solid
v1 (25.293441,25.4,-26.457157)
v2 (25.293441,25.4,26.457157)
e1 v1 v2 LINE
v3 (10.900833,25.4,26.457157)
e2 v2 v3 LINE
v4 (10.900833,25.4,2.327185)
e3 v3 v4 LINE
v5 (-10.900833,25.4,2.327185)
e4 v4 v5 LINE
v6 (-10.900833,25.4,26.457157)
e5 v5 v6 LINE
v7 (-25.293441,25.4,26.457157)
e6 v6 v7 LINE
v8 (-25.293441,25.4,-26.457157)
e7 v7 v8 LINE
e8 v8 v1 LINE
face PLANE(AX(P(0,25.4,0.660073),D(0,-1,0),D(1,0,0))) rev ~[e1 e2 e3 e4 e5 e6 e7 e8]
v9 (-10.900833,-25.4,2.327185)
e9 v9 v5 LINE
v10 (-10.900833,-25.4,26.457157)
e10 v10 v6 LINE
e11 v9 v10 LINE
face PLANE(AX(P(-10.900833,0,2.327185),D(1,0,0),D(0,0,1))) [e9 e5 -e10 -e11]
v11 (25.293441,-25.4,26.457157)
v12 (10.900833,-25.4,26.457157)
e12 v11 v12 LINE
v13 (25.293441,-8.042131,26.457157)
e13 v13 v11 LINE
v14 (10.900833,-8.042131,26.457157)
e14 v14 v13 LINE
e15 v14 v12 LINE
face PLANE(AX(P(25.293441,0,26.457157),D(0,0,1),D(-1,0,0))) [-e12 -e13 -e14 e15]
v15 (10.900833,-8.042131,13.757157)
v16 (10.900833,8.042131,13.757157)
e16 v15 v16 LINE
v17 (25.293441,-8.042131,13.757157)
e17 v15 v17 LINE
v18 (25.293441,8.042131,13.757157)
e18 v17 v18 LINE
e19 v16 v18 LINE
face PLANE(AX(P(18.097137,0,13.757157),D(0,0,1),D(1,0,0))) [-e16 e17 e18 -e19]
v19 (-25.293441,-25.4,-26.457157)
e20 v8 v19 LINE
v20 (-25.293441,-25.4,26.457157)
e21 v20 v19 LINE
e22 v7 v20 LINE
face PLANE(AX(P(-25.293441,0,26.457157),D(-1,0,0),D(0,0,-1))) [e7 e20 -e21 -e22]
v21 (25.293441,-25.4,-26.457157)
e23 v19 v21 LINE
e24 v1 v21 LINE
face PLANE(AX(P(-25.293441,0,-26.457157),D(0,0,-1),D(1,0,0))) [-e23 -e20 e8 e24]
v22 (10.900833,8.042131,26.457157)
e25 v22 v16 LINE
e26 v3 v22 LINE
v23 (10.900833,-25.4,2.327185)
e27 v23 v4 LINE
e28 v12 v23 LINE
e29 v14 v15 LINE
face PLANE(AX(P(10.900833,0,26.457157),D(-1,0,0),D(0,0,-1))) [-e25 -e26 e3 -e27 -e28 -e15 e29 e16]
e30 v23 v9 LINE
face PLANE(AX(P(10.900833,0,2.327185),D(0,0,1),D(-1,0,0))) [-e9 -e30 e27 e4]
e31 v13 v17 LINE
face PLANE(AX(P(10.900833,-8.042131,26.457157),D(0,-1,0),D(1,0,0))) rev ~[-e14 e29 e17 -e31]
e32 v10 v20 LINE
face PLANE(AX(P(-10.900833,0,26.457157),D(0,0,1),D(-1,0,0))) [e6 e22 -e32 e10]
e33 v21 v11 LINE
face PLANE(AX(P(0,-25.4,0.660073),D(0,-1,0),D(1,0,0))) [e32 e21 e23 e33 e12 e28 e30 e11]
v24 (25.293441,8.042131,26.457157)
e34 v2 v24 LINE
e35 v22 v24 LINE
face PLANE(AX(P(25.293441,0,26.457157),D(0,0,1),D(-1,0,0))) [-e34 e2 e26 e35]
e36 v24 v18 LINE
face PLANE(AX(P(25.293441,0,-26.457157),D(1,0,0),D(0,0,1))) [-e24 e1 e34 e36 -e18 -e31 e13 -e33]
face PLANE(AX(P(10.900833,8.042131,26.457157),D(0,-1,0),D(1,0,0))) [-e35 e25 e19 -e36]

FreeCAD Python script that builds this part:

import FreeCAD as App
import Part
import Sketcher
Q = App.Units.Quantity

doc = App.newDocument("Part")
body = doc.addObject("PartDesign::Body", "Body")

# Sketch on XZ plane
sketch1 = body.newObject("Sketcher::SketchObject", "Sketch")
sketch1.AttachmentSupport = (doc.getObject("XZ_Plane"), [""])
sketch1.MapMode = "FlatFace"
sketch1.addGeometry(Part.LineSegment(App.Vector(-10.900833, 26.457157, 0), App.Vector(-25.293441, 26.457157, 0)), False)
sketch1.addGeometry(Part.LineSegment(App.Vector(-25.293441, 26.457157, 0), App.Vector(-25.293441, -26.457157, 0)), False)
sketch1.addGeometry(Part.LineSegment(App.Vector(-25.293441, -26.457157, 0), App.Vector(25.293441, -26.457157, 0)), False)
sketch1.addGeometry(Part.LineSegment(App.Vector(25.293441, -26.457157, 0), App.Vector(25.293441, 26.457157, 0)), False)
sketch1.addGeometry(Part.LineSegment(App.Vector(25.293441, 26.457157, 0), App.Vector(10.900833, 26.457157, 0)), False)
sketch1.addGeometry(Part.LineSegment(App.Vector(10.900833, 26.457157, 0), App.Vector(10.900833, 2.327185, 0)), False)
sketch1.addGeometry(Part.LineSegment(App.Vector(10.900833, 2.327185, 0), App.Vector(-10.900833, 2.327185, 0)), False)
sketch1.addGeometry(Part.LineSegment(App.Vector(-10.900833, 2.327185, 0), App.Vector(-10.900833, 26.457157, 0)), False)
sketch1.addConstraint(Sketcher.Constraint("Coincident", 0, 2, 1, 1))
sketch1.addConstraint(Sketcher.Constraint("Coincident", 1, 2, 2, 1))
sketch1.addConstraint(Sketcher.Constraint("Coincident", 2, 2, 3, 1))
sketch1.addConstraint(Sketcher.Constraint("Coincident", 3, 2, 4, 1))
sketch1.addConstraint(Sketcher.Constraint("Coincident", 4, 2, 5, 1))
sketch1.addConstraint(Sketcher.Constraint("Coincident", 5, 2, 6, 1))
sketch1.addConstraint(Sketcher.Constraint("Coincident", 6, 2, 7, 1))
sketch1.addConstraint(Sketcher.Constraint("Coincident", 7, 2, 0, 1))
sketch1.addConstraint(Sketcher.Constraint("Horizontal", 0))
sketch1.addConstraint(Sketcher.Constraint("Vertical", 1))
sketch1.addConstraint(Sketcher.Constraint("Horizontal", 2))
sketch1.addConstraint(Sketcher.Constraint("Vertical", 3))
sketch1.addConstraint(Sketcher.Constraint("Horizontal", 4))
sketch1.addConstraint(Sketcher.Constraint("Vertical", 5))
sketch1.addConstraint(Sketcher.Constraint("Horizontal", 6))
sketch1.addConstraint(Sketcher.Constraint("Vertical", 7))
sketch1.addConstraint(Sketcher.Constraint("Symmetric", 0, 2, 2, 2, -1, 1))
sketch1.addConstraint(Sketcher.Constraint("Symmetric", 4, 2, 7, 2, -2))
sketch1.addConstraint(Sketcher.Constraint("DistanceX", 0, 2, 0, 1, Q("14.392608 mm")))
sketch1.addConstraint(Sketcher.Constraint("DistanceY", 5, 2, 5, 1, Q("24.129972 mm")))
sketch1.addConstraint(Sketcher.Constraint("DistanceX", 2, 1, 2, 2, Q("50.586882 mm")))
sketch1.addConstraint(Sketcher.Constraint("DistanceY", 1, 2, 1, 1, Q("52.914314 mm")))
pad1 = body.newObject("PartDesign::Pad", "Pad")
pad1.Profile = sketch1
pad1.Type = "TwoLengths"
pad1.Length = Q("1 in")
pad1.Length2 = Q("1 in")

# Sketch on XY plane
sketch2 = body.newObject("Sketcher::SketchObject", "Sketch001")
sketch2.AttachmentSupport = (doc.getObject("XY_Plane"), [""])
sketch2.MapMode = "FlatFace"
sketch2.AttachmentOffset = App.Placement(App.Vector(0, 0, 26.457157), App.Rotation())
sketch2.addGeometry(Part.LineSegment(App.Vector(10.900833, 8.042131, 0), App.Vector(10.900833, -8.042131, 0)), False)
sketch2.addGeometry(Part.LineSegment(App.Vector(10.900833, -8.042131, 0), App.Vector(25.293441, -8.042131, 0)), False)
sketch2.addGeometry(Part.LineSegment(App.Vector(25.293441, -8.042131, 0), App.Vector(25.293441, 8.042131, 0)), False)
sketch2.addGeometry(Part.LineSegment(App.Vector(25.293441, 8.042131, 0), App.Vector(10.900833, 8.042131, 0)), False)
sketch2.addConstraint(Sketcher.Constraint("Coincident", 0, 2, 1, 1))
sketch2.addConstraint(Sketcher.Constraint("Coincident", 1, 2, 2, 1))
sketch2.addConstraint(Sketcher.Constraint("Coincident", 2, 2, 3, 1))
sketch2.addConstraint(Sketcher.Constraint("Coincident", 3, 2, 0, 1))
sketch2.addConstraint(Sketcher.Constraint("Vertical", 0))
sketch2.addConstraint(Sketcher.Constraint("Horizontal", 1))
sketch2.addConstraint(Sketcher.Constraint("Vertical", 2))
sketch2.addConstraint(Sketcher.Constraint("Horizontal", 3))
sketch2.addConstraint(Sketcher.Constraint("DistanceX", 1, 1, 1, 2, Q("14.392608 mm")))
sketch2.addConstraint(Sketcher.Constraint("DistanceY", 0, 2, 0, 1, Q("16.084262 mm")))
sketch2.addConstraint(Sketcher.Constraint("DistanceY", 0, 2, -1, 1, Q("8.042131 mm")))
sketch2.addConstraint(Sketcher.Constraint("DistanceX", -1, 1, 1, 2, Q("25.293441 mm")))
pocket1 = body.newObject("PartDesign::Pocket", "Pocket")
pocket1.Profile = sketch2
pocket1.Length = Q("0.5 in")

doc.recompute()
